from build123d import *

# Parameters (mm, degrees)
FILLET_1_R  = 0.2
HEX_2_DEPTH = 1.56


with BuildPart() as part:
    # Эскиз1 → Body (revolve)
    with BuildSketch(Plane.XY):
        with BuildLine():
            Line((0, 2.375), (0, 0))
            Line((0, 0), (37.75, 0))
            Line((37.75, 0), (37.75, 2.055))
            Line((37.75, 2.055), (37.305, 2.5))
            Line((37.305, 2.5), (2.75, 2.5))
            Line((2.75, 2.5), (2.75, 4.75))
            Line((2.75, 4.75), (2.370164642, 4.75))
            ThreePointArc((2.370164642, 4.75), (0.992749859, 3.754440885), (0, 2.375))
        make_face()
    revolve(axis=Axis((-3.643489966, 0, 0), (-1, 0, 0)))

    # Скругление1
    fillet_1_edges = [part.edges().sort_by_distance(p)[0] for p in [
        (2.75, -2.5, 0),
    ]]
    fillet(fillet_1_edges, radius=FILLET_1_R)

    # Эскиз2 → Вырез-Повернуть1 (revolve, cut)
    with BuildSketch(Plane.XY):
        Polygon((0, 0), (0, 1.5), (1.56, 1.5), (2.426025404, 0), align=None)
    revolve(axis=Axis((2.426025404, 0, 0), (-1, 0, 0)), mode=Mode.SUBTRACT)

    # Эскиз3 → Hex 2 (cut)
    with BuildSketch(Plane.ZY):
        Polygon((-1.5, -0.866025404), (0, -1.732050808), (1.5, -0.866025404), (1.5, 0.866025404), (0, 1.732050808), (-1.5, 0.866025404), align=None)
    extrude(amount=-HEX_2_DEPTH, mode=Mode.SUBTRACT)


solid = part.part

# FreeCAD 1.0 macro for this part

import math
import FreeCAD as App
import Part
import Sketcher
Q = App.Units.Quantity


def edges_at(feature, points):
    """Names of the edges that pass closest to the given points."""
    edges = feature.Shape.Edges
    near = lambda p: min(range(len(edges)), key=lambda i: edges[i].distToShape(Part.Vertex(*p))[0])
    return sorted({f"Edge{near(p) + 1}" for p in points})


def add_polygon(sketch, points):
    """Adds a closed chain of lines whose ends are joined by coincident constraints."""
    first, n = sketch.GeometryCount, len(points)
    for a, b in zip(points, points[1:] + points[:1]):
        sketch.addGeometry(Part.LineSegment(App.Vector(*a, 0), App.Vector(*b, 0)), False)
    for i in range(n):
        sketch.addConstraint(Sketcher.Constraint("Coincident", first + i, 2, first + (i + 1) % n, 1))

doc = App.newDocument("Part")
body = doc.addObject("PartDesign::Body", "Body")

# Sketch on XY plane
sketch1 = doc.addObject("Sketcher::SketchObject", "Sketch")
body.addObject(sketch1)
sketch1.AttachmentSupport = (doc.XY_Plane, [""])
sketch1.MapMode = "FlatFace"
sketch1.addGeometry([
    Part.LineSegment(App.Vector(0, 2.375, 0), App.Vector(0, 0, 0)),  # 0
    Part.LineSegment(App.Vector(0, 0, 0), App.Vector(37.75, 0, 0)),  # 1
    Part.LineSegment(App.Vector(37.75, 0, 0), App.Vector(37.75, 2.055, 0)),  # 2
    Part.LineSegment(App.Vector(37.75, 2.055, 0), App.Vector(37.305, 2.5, 0)),  # 3
    Part.LineSegment(App.Vector(37.305, 2.5, 0), App.Vector(2.75, 2.5, 0)),  # 4
    Part.LineSegment(App.Vector(2.75, 2.5, 0), App.Vector(2.75, 4.75, 0)),  # 5
    Part.LineSegment(App.Vector(2.75, 4.75, 0), App.Vector(2.370165, 4.75, 0)),  # 6
    Part.ArcOfCircle(Part.Circle(App.Vector(4.75485, 0, 0), App.Vector(0, 0, 1), 5.315), math.radians(116.658438), math.radians(153.458331)),  # 7
], False)
sketch1.addConstraint([
    Sketcher.Constraint("Coincident", 0, 2, 1, 1),
    Sketcher.Constraint("Coincident", 1, 2, 2, 1),
    Sketcher.Constraint("Coincident", 2, 2, 3, 1),
    Sketcher.Constraint("Coincident", 3, 2, 4, 1),
    Sketcher.Constraint("Coincident", 4, 2, 5, 1),
    Sketcher.Constraint("Coincident", 5, 2, 6, 1),
    Sketcher.Constraint("Coincident", 6, 2, 7, 1),
    Sketcher.Constraint("Coincident", 7, 2, 0, 1),
    Sketcher.Constraint("Vertical", 0),
    Sketcher.Constraint("Horizontal", 1),
    Sketcher.Constraint("Vertical", 2),
    Sketcher.Constraint("Horizontal", 4),
    Sketcher.Constraint("Vertical", 5),
    Sketcher.Constraint("Horizontal", 6),
    Sketcher.Constraint("Coincident", 0, 2, -1, 1),
    Sketcher.Constraint("PointOnObject", 7, 3, -1),
    Sketcher.Constraint("Angle", 3, Q("135 deg")),
    Sketcher.Constraint("Radius", 7, Q("5.315 mm")),
    Sketcher.Constraint("DistanceX", 4, 2, 2, 2, Q("35 mm")),
    Sketcher.Constraint("DistanceX", 1, 1, 1, 2, Q("37.75 mm")),
    Sketcher.Constraint("DistanceY", 5, 1, 5, 2, Q("2.25 mm")),
    Sketcher.Constraint("DistanceY", -1, 1, 3, 2, Q("2.5 mm")),
    Sketcher.Constraint("DistanceX", 4, 2, 4, 1, Q("34.555 mm")),
    Sketcher.Constraint("DistanceY", 0, 2, 0, 1, Q("2.375 mm")),
])
revolution = doc.addObject("PartDesign::Revolution", "Revolution")
body.addObject(revolution)
revolution.Profile = sketch1
revolution.ReferenceAxis = (sketch1, ["H_Axis"])
revolution.Angle = 360
doc.recompute()

fillet = doc.addObject("PartDesign::Fillet", "Fillet")
body.addObject(fillet)
fillet.Base = (revolution, edges_at(revolution, [(2.75, -2.5, 0)]))
fillet.Radius = 0.2

# Sketch on XY plane
sketch2 = doc.addObject("Sketcher::SketchObject", "Sketch001")
body.addObject(sketch2)
sketch2.AttachmentSupport = (doc.XY_Plane, [""])
sketch2.MapMode = "FlatFace"
add_polygon(sketch2, [(0, 1.5), (0, 0), (2.426025, 0), (1.56, 1.5)])  # lines 0-3
sketch2.addConstraint([
    Sketcher.Constraint("Vertical", 0),
    Sketcher.Constraint("Horizontal", 1),
    Sketcher.Constraint("Horizontal", 3),
    Sketcher.Constraint("Coincident", 0, 2, -1, 1),
    Sketcher.Constraint("Angle", 2, Q("120 deg")),
    Sketcher.Constraint("DistanceY", 0, 2, 0, 1, Q("1.5 mm")),
    Sketcher.Constraint("DistanceX", 3, 2, 3, 1, Q("1.56 mm")),
])
groove = doc.addObject("PartDesign::Groove", "Groove")
body.addObject(groove)
groove.Profile = sketch2
groove.ReferenceAxis = (sketch2, ["H_Axis"])
groove.Angle = 360

# Sketch on YZ plane
sketch3 = doc.addObject("Sketcher::SketchObject", "Sketch002")
body.addObject(sketch3)
sketch3.AttachmentSupport = (doc.YZ_Plane, [""])
sketch3.MapMode = "FlatFace"
add_polygon(sketch3, [(-0.866025, -1.5), (-1.732051, 0), (-0.866025, 1.5), (0.866025, 1.5), (1.732051, 0), (0.866025, -1.5)])  # lines 0-5
sketch3.addConstraint([
    Sketcher.Constraint("Horizontal", 2),
    Sketcher.Constraint("Horizontal", 5),
    Sketcher.Constraint("Symmetric", 0, 2, 3, 2, -1, 1),
    Sketcher.Constraint("Symmetric", 1, 2, 4, 2, -1, 1),
    Sketcher.Constraint("PointOnObject", 0, 2, -1),
    Sketcher.Constraint("Parallel", 0, 3),
    Sketcher.Constraint("Vertical", 2, 2, 4, 2),
    Sketcher.Constraint("Angle", 0, Q("120 deg")),
    Sketcher.Constraint("DistanceY", 4, 2, 2, 2, Q("3 mm")),
    Sketcher.Constraint("DistanceX", 2, 1, 2, 2, Q("1.732051 mm")),
])
pocket1 = doc.addObject("PartDesign::Pocket", "Pocket")
body.addObject(pocket1)
pocket1.Profile = sketch3
pocket1.Length = 1.56
pocket1.Reversed = True

doc.recompute()
